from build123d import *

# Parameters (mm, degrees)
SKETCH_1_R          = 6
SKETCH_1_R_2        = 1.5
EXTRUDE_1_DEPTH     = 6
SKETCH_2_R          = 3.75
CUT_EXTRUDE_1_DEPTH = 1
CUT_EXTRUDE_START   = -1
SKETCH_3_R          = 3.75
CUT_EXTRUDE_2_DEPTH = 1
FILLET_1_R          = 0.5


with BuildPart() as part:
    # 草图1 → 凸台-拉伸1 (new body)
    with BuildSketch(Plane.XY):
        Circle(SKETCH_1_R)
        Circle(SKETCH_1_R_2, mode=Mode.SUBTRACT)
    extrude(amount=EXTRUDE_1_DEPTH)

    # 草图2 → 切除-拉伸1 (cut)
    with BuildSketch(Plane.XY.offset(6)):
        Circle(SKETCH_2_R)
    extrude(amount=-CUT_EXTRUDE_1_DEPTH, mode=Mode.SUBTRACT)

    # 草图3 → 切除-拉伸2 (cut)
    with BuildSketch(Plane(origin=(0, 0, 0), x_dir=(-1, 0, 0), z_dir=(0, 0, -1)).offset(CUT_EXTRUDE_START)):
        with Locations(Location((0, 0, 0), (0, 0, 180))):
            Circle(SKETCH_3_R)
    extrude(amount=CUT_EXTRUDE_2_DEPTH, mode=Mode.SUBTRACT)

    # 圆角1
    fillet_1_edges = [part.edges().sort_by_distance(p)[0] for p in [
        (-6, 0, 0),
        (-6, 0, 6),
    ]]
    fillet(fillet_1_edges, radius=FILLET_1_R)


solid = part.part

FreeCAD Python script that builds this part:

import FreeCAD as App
import Part
import Sketcher
Q = App.Units.Quantity


def edges_at(feature, points):
    """Names of the edges that pass closest to the given points."""
    edges = feature.Shape.Edges
    near = lambda p: min(range(len(edges)), key=lambda i: edges[i].distToShape(Part.Vertex(*p))[0])
    return sorted({f"Edge{near(p) + 1}" for p in points})

doc = App.newDocument("Part")
body = doc.addObject("PartDesign::Body", "Body")

# Sketch on XY plane
sketch1 = body.newObject("Sketcher::SketchObject", "Sketch")
sketch1.AttachmentSupport = (doc.getObject("XY_Plane"), [""])
sketch1.MapMode = "FlatFace"
sketch1.addGeometry(Part.Circle(App.Vector(0, 0, 0), App.Vector(0, 0, 1), 6), False)
sketch1.addGeometry(Part.Circle(App.Vector(0, 0, 0), App.Vector(0, 0, 1), 1.5), False)
sketch1.addConstraint(Sketcher.Constraint("Coincident", 0, 3, -1, 1))
sketch1.addConstraint(Sketcher.Constraint("Coincident", 1, 3, -1, 1))
sketch1.addConstraint(Sketcher.Constraint("Diameter", 0, Q("12 mm")))
sketch1.addConstraint(Sketcher.Constraint("Diameter", 1, Q("3 mm")))
pad1 = body.newObject("PartDesign::Pad", "Pad")
pad1.Profile = sketch1
pad1.Length = 6

# Sketch on XY plane
sketch2 = body.newObject("Sketcher::SketchObject", "Sketch001")
sketch2.AttachmentSupport = (doc.getObject("XY_Plane"), [""])
sketch2.MapMode = "FlatFace"
sketch2.AttachmentOffset = App.Placement(App.Vector(0, 0, 6), App.Rotation())
sketch2.addGeometry(Part.Circle(App.Vector(0, 0, 0), App.Vector(0, 0, 1), 3.8), False)
sketch2.addConstraint(Sketcher.Constraint("Coincident", 0, 3, -1, 1))
sketch2.addConstraint(Sketcher.Constraint("Diameter", 0, Q("7.5 mm")))
pocket1 = body.newObject("PartDesign::Pocket", "Pocket")
pocket1.Profile = sketch2
pocket1.Length = 1

# Sketch on XY plane
sketch3 = body.newObject("Sketcher::SketchObject", "Sketch002")
sketch3.AttachmentSupport = (doc.getObject("XY_Plane"), [""])
sketch3.MapMode = "FlatFace"
sketch3.AttachmentOffset = App.Placement(App.Vector(0, 0, 1), App.Rotation())
sketch3.addGeometry(Part.Circle(App.Vector(0, 0, 0), App.Vector(0, 0, 1), 3.8), False)
sketch3.addConstraint(Sketcher.Constraint("Coincident", 0, 3, -1, 1))
sketch3.addConstraint(Sketcher.Constraint("Diameter", 0, Q("7.5 mm")))
pocket2 = body.newObject("PartDesign::Pocket", "Pocket001")
pocket2.Profile = sketch3
pocket2.Length = 1
doc.recompute()

fillet = body.newObject("PartDesign::Fillet", "Fillet")
fillet.Base = (pocket2, edges_at(pocket2, [(-6, 0, 0), (-6, 0, 6)]))
fillet.Radius = 0.5

doc.recompute()
